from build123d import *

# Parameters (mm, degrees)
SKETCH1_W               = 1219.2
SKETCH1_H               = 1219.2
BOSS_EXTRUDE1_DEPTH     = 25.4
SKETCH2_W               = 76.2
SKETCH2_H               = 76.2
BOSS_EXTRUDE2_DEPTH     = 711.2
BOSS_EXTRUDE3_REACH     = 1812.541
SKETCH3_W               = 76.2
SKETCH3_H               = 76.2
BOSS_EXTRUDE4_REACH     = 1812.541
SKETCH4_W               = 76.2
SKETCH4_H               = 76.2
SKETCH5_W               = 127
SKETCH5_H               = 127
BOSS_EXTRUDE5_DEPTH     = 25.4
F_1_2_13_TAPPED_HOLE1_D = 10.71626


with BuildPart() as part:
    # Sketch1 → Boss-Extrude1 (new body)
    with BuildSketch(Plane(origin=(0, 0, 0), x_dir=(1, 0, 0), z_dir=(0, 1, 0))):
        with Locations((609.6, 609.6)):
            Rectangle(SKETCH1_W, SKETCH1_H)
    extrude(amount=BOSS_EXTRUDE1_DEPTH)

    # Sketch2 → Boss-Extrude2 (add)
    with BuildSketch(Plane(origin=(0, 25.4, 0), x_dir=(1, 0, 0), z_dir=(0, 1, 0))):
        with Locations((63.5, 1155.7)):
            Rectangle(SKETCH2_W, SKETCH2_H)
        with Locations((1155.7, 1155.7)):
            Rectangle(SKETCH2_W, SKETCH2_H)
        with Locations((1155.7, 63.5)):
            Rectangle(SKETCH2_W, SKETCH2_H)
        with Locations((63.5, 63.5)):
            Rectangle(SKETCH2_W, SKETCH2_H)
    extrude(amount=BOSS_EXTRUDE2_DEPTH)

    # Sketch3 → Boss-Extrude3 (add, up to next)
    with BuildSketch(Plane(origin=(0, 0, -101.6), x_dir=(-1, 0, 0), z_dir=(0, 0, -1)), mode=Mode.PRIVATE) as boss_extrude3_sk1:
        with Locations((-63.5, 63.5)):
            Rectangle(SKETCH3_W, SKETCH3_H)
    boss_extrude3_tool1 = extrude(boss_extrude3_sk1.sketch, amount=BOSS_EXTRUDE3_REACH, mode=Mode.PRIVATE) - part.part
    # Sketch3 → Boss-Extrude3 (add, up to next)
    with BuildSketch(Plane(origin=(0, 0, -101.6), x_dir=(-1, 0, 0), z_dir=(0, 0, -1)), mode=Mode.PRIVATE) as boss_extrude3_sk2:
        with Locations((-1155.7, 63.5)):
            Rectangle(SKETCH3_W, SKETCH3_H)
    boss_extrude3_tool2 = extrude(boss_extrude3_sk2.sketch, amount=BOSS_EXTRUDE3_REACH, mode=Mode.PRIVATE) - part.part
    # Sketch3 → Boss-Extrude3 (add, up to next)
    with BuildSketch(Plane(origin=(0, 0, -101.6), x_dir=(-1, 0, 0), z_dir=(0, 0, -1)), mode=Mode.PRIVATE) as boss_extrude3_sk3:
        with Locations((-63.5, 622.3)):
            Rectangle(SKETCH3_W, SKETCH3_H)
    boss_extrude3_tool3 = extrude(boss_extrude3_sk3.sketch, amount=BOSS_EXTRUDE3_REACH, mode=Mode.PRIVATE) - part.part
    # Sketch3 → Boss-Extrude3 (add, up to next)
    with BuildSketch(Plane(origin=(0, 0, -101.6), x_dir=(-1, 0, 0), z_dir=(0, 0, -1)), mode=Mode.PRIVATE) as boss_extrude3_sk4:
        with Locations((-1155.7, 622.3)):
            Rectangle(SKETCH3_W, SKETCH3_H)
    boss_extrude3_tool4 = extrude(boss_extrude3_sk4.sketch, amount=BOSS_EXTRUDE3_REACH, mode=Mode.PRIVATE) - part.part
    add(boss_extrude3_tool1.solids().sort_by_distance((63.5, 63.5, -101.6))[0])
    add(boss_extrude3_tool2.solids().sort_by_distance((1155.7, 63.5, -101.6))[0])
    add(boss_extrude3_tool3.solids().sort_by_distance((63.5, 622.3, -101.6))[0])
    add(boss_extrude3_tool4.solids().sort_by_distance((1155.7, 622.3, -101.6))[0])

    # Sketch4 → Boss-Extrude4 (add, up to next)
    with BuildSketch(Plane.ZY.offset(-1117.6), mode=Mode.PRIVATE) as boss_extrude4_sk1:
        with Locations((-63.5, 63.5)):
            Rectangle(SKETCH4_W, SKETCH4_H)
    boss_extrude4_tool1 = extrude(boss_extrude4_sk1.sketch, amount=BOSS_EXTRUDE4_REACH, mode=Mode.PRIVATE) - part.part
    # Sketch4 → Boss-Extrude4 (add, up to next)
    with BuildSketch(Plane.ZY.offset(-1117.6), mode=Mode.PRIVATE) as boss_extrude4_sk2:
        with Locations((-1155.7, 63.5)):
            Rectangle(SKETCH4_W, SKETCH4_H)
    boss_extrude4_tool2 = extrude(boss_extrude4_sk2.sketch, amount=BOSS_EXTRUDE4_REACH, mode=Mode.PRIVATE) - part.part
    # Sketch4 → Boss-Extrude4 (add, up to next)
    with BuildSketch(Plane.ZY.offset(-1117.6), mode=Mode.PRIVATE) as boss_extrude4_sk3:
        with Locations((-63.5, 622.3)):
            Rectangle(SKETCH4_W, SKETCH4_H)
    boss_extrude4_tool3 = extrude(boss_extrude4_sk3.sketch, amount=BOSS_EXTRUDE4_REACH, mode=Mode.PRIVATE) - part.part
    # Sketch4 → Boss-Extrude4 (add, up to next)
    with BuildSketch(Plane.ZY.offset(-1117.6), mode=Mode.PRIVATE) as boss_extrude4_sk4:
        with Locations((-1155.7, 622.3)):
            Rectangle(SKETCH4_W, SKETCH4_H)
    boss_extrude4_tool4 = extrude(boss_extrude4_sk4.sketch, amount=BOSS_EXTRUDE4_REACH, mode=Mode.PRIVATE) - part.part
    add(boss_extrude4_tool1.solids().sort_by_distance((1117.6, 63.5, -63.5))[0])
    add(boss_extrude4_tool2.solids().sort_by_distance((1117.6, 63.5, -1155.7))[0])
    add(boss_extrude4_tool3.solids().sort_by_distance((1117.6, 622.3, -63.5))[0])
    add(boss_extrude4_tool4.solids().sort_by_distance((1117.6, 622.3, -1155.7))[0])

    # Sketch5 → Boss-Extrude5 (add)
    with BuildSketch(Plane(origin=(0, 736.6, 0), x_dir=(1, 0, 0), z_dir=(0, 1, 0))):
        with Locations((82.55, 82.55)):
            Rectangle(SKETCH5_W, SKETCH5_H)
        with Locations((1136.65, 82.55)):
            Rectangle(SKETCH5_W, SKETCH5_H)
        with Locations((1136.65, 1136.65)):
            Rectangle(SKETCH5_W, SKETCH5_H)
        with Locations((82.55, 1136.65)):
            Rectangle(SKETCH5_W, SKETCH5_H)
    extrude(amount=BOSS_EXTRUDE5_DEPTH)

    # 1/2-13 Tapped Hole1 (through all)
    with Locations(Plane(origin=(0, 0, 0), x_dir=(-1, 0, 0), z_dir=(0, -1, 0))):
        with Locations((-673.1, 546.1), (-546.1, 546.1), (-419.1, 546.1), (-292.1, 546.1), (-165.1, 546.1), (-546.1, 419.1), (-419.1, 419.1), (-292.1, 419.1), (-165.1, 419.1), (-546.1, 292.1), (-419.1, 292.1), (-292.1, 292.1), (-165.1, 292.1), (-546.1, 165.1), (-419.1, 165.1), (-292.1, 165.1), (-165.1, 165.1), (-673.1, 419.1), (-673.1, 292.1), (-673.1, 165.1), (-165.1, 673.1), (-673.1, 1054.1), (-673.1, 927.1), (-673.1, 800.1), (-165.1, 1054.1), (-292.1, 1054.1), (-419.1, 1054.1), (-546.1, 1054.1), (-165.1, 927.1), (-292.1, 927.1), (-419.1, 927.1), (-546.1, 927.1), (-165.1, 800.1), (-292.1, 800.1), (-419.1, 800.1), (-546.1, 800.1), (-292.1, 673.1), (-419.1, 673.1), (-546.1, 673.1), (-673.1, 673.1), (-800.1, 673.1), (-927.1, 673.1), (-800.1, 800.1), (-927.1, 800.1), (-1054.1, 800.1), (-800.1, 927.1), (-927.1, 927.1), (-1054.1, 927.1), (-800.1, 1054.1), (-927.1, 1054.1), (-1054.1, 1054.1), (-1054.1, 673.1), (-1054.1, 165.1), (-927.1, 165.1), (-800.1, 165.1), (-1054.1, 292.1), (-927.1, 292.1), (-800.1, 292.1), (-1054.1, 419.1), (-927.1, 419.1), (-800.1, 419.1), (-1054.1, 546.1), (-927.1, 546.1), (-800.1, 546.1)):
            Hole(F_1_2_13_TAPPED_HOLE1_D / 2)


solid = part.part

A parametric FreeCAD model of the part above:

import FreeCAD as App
import Part
import Sketcher
from FreeCAD import Vector
Q = App.Units.Quantity


def add_polygon(sketch, points):
    """Adds a closed chain of lines whose ends are joined by coincident constraints."""
    first, n = sketch.GeometryCount, len(points)
    for a, b in zip(points, points[1:] + points[:1]):
        sketch.addGeometry(Part.LineSegment(App.Vector(*a, 0), App.Vector(*b, 0)), False)
    for i in range(n):
        sketch.addConstraint(Sketcher.Constraint("Coincident", first + i, 2, first + (i + 1) % n, 1))

doc = App.newDocument("Part")
params = doc.addObject("Spreadsheet::Sheet", "Params")
for row, (alias, value) in enumerate([
    ("sketch1_width", "48 in"),
    ("pad1_length", "1 in"),
    ("sketch2_width", "3 in"),
    ("pad2_length", "28 in"),
    ("sketch3_width", "3 in"),
    ("sketch4_width", "3 in"),
    ("sketch5_width", "3 in"),
    ("sketch6_width", "3 in"),
    ("sketch7_width", "3 in"),
    ("sketch8_width", "3 in"),
    ("sketch9_width", "3 in"),
    ("sketch10_width", "3 in"),
    ("sketch11_width", "5 in"),
    ("pad11_length", "1 in"),
    ("hole_diameter", "0.4219 in"),
], start=1):
    params.set(f"A{row}", alias)
    params.set(f"B{row}", "=" + value)
    params.setAlias(f"B{row}", alias)

body = doc.addObject("PartDesign::Body", "Body")

# Sketch on XZ plane
sketch1 = body.newObject("Sketcher::SketchObject", "Sketch")
sketch1.AttachmentSupport = (doc.getObject("XZ_Plane"), [""])
sketch1.MapMode = "FlatFace"
add_polygon(sketch1, [(0, -1219.2), (0, 0), (1219.2, 0), (1219.2, -1219.2)])  # lines 0-3
sketch1.addConstraint([
    Sketcher.Constraint("Vertical", 0),
    Sketcher.Constraint("Horizontal", 1),
    Sketcher.Constraint("Vertical", 2),
    Sketcher.Constraint("Horizontal", 3),
    Sketcher.Constraint("Coincident", 0, 2, -1, 1),
    Sketcher.Constraint("Equal", 3, 0),
    Sketcher.Constraint("DistanceX", 1, 1, 1, 2, Q("48 in")),
])
sketch1.setExpression("Constraints[10]", "Params.sketch1_width")
pad1 = body.newObject("PartDesign::Pad", "Pad")
pad1.Profile = sketch1
pad1.setExpression("Length", "Params.pad1_length")
pad1.Reversed = True

# Sketch on XZ plane
sketch2 = body.newObject("Sketcher::SketchObject", "Sketch001")
sketch2.AttachmentSupport = (doc.getObject("XZ_Plane"), [""])
sketch2.MapMode = "FlatFace"
sketch2.AttachmentOffset = App.Placement(Vector(0, 0, -1 * 25.4), App.Rotation())
add_polygon(sketch2, [(25.4, -1193.8), (25.4, -1117.6), (101.6, -1117.6), (101.6, -1193.8)])  # lines 0-3
add_polygon(sketch2, [(1117.6, -1193.8), (1117.6, -1117.6), (1193.8, -1117.6), (1193.8, -1193.8)])  # lines 4-7
add_polygon(sketch2, [(1117.6, -101.6), (1117.6, -25.4), (1193.8, -25.4), (1193.8, -101.6)])  # lines 8-11
add_polygon(sketch2, [(25.4, -101.6), (25.4, -25.4), (101.6, -25.4), (101.6, -101.6)])  # lines 12-15
sketch2.addConstraint([
    Sketcher.Constraint("Vertical", 0),
    Sketcher.Constraint("Horizontal", 1),
    Sketcher.Constraint("Vertical", 2),
    Sketcher.Constraint("Horizontal", 3),
    Sketcher.Constraint("Vertical", 4),
    Sketcher.Constraint("Horizontal", 5),
    Sketcher.Constraint("Vertical", 6),
    Sketcher.Constraint("Horizontal", 7),
    Sketcher.Constraint("Vertical", 8),
    Sketcher.Constraint("Horizontal", 9),
    Sketcher.Constraint("Vertical", 10),
    Sketcher.Constraint("Horizontal", 11),
    Sketcher.Constraint("Vertical", 12),
    Sketcher.Constraint("Horizontal", 13),
    Sketcher.Constraint("Vertical", 14),
    Sketcher.Constraint("Horizontal", 15),
    Sketcher.Constraint("Horizontal", 1, 2, 4, 2),
    Sketcher.Constraint("Horizontal", 3, 2, 6, 2),
    Sketcher.Constraint("Horizontal", 9, 2, 12, 2),
    Sketcher.Constraint("Horizontal", 11, 2, 14, 2),
    Sketcher.Constraint("Vertical", 7, 2, 8, 2),
    Sketcher.Constraint("Vertical", 6, 2, 9, 2),
    Sketcher.Constraint("Vertical", 3, 2, 12, 2),
    Sketcher.Constraint("Vertical", 2, 2, 13, 2),
    Sketcher.Constraint("Equal", 3, 5),
    Sketcher.Constraint("Equal", 15, 0),
    Sketcher.Constraint("Equal", 6, 8),
    Sketcher.Constraint("DistanceX", 1, 1, 1, 2, Q("3 in")),
    Sketcher.Constraint("DistanceX", -1, 1, 0, 2, Q("1 in")),
    Sketcher.Constraint("DistanceY", 0, 2, -1, 1, Q("44 in")),
    Sketcher.Constraint("DistanceX", -1, 1, 4, 2, Q("44 in")),
    Sketcher.Constraint("DistanceY", 8, 2, -1, 1, Q("1 in")),
])
sketch2.setExpression("Constraints[43]", "Params.sketch2_width")
pad2 = body.newObject("PartDesign::Pad", "Pad001")
pad2.Profile = sketch2
pad2.setExpression("Length", "Params.pad2_length")
pad2.Reversed = True

# Sketch on XY plane
sketch3 = body.newObject("Sketcher::SketchObject", "Sketch002")
sketch3.AttachmentSupport = (doc.getObject("XY_Plane"), [""])
sketch3.MapMode = "FlatFace"
sketch3.AttachmentOffset = App.Placement(Vector(0, 0, -4 * 25.4), App.Rotation())
add_polygon(sketch3, [(101.6, 101.6), (101.6, 25.4), (25.4, 25.4), (25.4, 101.6)])  # lines 0-3
sketch3.addConstraint([
    Sketcher.Constraint("Vertical", 0),
    Sketcher.Constraint("Horizontal", 1),
    Sketcher.Constraint("Vertical", 2),
    Sketcher.Constraint("Horizontal", 3),
    Sketcher.Constraint("Equal", 3, 0),
    Sketcher.Constraint("DistanceX", 1, 2, 1, 1, Q("3 in")),
    Sketcher.Constraint("DistanceX", -1, 1, 0, 2, Q("4 in")),
    Sketcher.Constraint("DistanceY", -1, 1, 0, 2, Q("1 in")),
])
sketch3.setExpression("Constraints[9]", "Params.sketch3_width")
pad3 = body.newObject("PartDesign::Pad", "Pad002")
pad3.Profile = sketch3
pad3.Type = "UpToFirst"
pad3.Reversed = True

# Sketch on XY plane
sketch4 = body.newObject("Sketcher::SketchObject", "Sketch003")
sketch4.AttachmentSupport = (doc.getObject("XY_Plane"), [""])
sketch4.MapMode = "FlatFace"
sketch4.AttachmentOffset = App.Placement(Vector(0, 0, -4 * 25.4), App.Rotation())
add_polygon(sketch4, [(1193.8, 101.6), (1193.8, 25.4), (1117.6, 25.4), (1117.6, 101.6)])  # lines 0-3
sketch4.addConstraint([
    Sketcher.Constraint("Vertical", 0),
    Sketcher.Constraint("Horizontal", 1),
    Sketcher.Constraint("Vertical", 2),
    Sketcher.Constraint("Horizontal", 3),
    Sketcher.Constraint("Equal", 3, 0),
    Sketcher.Constraint("DistanceX", 1, 2, 1, 1, Q("3 in")),
    Sketcher.Constraint("DistanceX", -1, 1, 0, 2, Q("47 in")),
    Sketcher.Constraint("DistanceY", -1, 1, 0, 2, Q("1 in")),
])
sketch4.setExpression("Constraints[9]", "Params.sketch4_width")
pad4 = body.newObject("PartDesign::Pad", "Pad003")
pad4.Profile = sketch4
pad4.Type = "UpToFirst"
pad4.Reversed = True

# Sketch on XY plane
sketch5 = body.newObject("Sketcher::SketchObject", "Sketch004")
sketch5.AttachmentSupport = (doc.getObject("XY_Plane"), [""])
sketch5.MapMode = "FlatFace"
sketch5.AttachmentOffset = App.Placement(Vector(0, 0, -4 * 25.4), App.Rotation())
add_polygon(sketch5, [(101.6, 660.4), (101.6, 584.2), (25.4, 584.2), (25.4, 660.4)])  # lines 0-3
sketch5.addConstraint([
    Sketcher.Constraint("Vertical", 0),
    Sketcher.Constraint("Horizontal", 1),
    Sketcher.Constraint("Vertical", 2),
    Sketcher.Constraint("Horizontal", 3),
    Sketcher.Constraint("Equal", 3, 0),
    Sketcher.Constraint("DistanceX", 1, 2, 1, 1, Q("3 in")),
    Sketcher.Constraint("DistanceX", -1, 1, 0, 2, Q("4 in")),
    Sketcher.Constraint("DistanceY", -1, 1, 0, 2, Q("23 in")),
])
sketch5.setExpression("Constraints[9]", "Params.sketch5_width")
pad5 = body.newObject("PartDesign::Pad", "Pad004")
pad5.Profile = sketch5
pad5.Type = "UpToFirst"
pad5.Reversed = True

# Sketch on XY plane
sketch6 = body.newObject("Sketcher::SketchObject", "Sketch005")
sketch6.AttachmentSupport = (doc.getObject("XY_Plane"), [""])
sketch6.MapMode = "FlatFace"
sketch6.AttachmentOffset = App.Placement(Vector(0, 0, -4 * 25.4), App.Rotation())
add_polygon(sketch6, [(1193.8, 660.4), (1193.8, 584.2), (1117.6, 584.2), (1117.6, 660.4)])  # lines 0-3
sketch6.addConstraint([
    Sketcher.Constraint("Vertical", 0),
    Sketcher.Constraint("Horizontal", 1),
    Sketcher.Constraint("Vertical", 2),
    Sketcher.Constraint("Horizontal", 3),
    Sketcher.Constraint("Equal", 3, 0),
    Sketcher.Constraint("DistanceX", 1, 2, 1, 1, Q("3 in")),
    Sketcher.Constraint("DistanceX", -1, 1, 0, 2, Q("47 in")),
    Sketcher.Constraint("DistanceY", -1, 1, 0, 2, Q("23 in")),
])
sketch6.setExpression("Constraints[9]", "Params.sketch6_width")
pad6 = body.newObject("PartDesign::Pad", "Pad005")
pad6.Profile = sketch6
pad6.Type = "UpToFirst"
pad6.Reversed = True

# Sketch on YZ plane
sketch7 = body.newObject("Sketcher::SketchObject", "Sketch006")
sketch7.AttachmentSupport = (doc.getObject("YZ_Plane"), [""])
sketch7.MapMode = "FlatFace"
sketch7.AttachmentOffset = App.Placement(Vector(0, 0, 44 * 25.4), App.Rotation())
add_polygon(sketch7, [(101.6, -101.6), (25.4, -101.6), (25.4, -25.4), (101.6, -25.4)])  # lines 0-3
sketch7.addConstraint([
    Sketcher.Constraint("Horizontal", 0),
    Sketcher.Constraint("Vertical", 1),
    Sketcher.Constraint("Horizontal", 2),
    Sketcher.Constraint("Vertical", 3),
    Sketcher.Constraint("Equal", 2, 1),
    Sketcher.Constraint("DistanceX", 0, 2, 0, 1, Q("3 in")),
    Sketcher.Constraint("DistanceX", -1, 1, 0, 2, Q("1 in")),
    Sketcher.Constraint("DistanceY", 0, 2, -1, 1, Q("4 in")),
])
sketch7.setExpression("Constraints[9]", "Params.sketch7_width")
pad7 = body.newObject("PartDesign::Pad", "Pad006")
pad7.Profile = sketch7
pad7.Type = "UpToFirst"
pad7.Reversed = True

# Sketch on YZ plane
sketch8 = body.newObject("Sketcher::SketchObject", "Sketch007")
sketch8.AttachmentSupport = (doc.getObject("YZ_Plane"), [""])
sketch8.MapMode = "FlatFace"
sketch8.AttachmentOffset = App.Placement(Vector(0, 0, 44 * 25.4), App.Rotation())
add_polygon(sketch8, [(101.6, -1193.8), (25.4, -1193.8), (25.4, -1117.6), (101.6, -1117.6)])  # lines 0-3
sketch8.addConstraint([
    Sketcher.Constraint("Horizontal", 0),
    Sketcher.Constraint("Vertical", 1),
    Sketcher.Constraint("Horizontal", 2),
    Sketcher.Constraint("Vertical", 3),
    Sketcher.Constraint("Equal", 2, 1),
    Sketcher.Constraint("DistanceX", 0, 2, 0, 1, Q("3 in")),
    Sketcher.Constraint("DistanceX", -1, 1, 0, 2, Q("1 in")),
    Sketcher.Constraint("DistanceY", 0, 2, -1, 1, Q("47 in")),
])
sketch8.setExpression("Constraints[9]", "Params.sketch8_width")
pad8 = body.newObject("PartDesign::Pad", "Pad007")
pad8.Profile = sketch8
pad8.Type = "UpToFirst"
pad8.Reversed = True

# Sketch on YZ plane
sketch9 = body.newObject("Sketcher::SketchObject", "Sketch008")
sketch9.AttachmentSupport = (doc.getObject("YZ_Plane"), [""])
sketch9.MapMode = "FlatFace"
sketch9.AttachmentOffset = App.Placement(Vector(0, 0, 44 * 25.4), App.Rotation())
add_polygon(sketch9, [(660.4, -101.6), (584.2, -101.6), (584.2, -25.4), (660.4, -25.4)])  # lines 0-3
sketch9.addConstraint([
    Sketcher.Constraint("Horizontal", 0),
    Sketcher.Constraint("Vertical", 1),
    Sketcher.Constraint("Horizontal", 2),
    Sketcher.Constraint("Vertical", 3),
    Sketcher.Constraint("Equal", 2, 1),
    Sketcher.Constraint("DistanceX", 0, 2, 0, 1, Q("3 in")),
    Sketcher.Constraint("DistanceX", -1, 1, 0, 2, Q("23 in")),
    Sketcher.Constraint("DistanceY", 0, 2, -1, 1, Q("4 in")),
])
sketch9.setExpression("Constraints[9]", "Params.sketch9_width")
pad9 = body.newObject("PartDesign::Pad", "Pad008")
pad9.Profile = sketch9
pad9.Type = "UpToFirst"
pad9.Reversed = True

# Sketch on YZ plane
sketch10 = body.newObject("Sketcher::SketchObject", "Sketch009")
sketch10.AttachmentSupport = (doc.getObject("YZ_Plane"), [""])
sketch10.MapMode = "FlatFace"
sketch10.AttachmentOffset = App.Placement(Vector(0, 0, 44 * 25.4), App.Rotation())
add_polygon(sketch10, [(660.4, -1193.8), (584.2, -1193.8), (584.2, -1117.6), (660.4, -1117.6)])  # lines 0-3
sketch10.addConstraint([
    Sketcher.Constraint("Horizontal", 0),
    Sketcher.Constraint("Vertical", 1),
    Sketcher.Constraint("Horizontal", 2),
    Sketcher.Constraint("Vertical", 3),
    Sketcher.Constraint("Equal", 2, 1),
    Sketcher.Constraint("DistanceX", 0, 2, 0, 1, Q("3 in")),
    Sketcher.Constraint("DistanceX", -1, 1, 0, 2, Q("23 in")),
    Sketcher.Constraint("DistanceY", 0, 2, -1, 1, Q("47 in")),
])
sketch10.setExpression("Constraints[9]", "Params.sketch10_width")
pad10 = body.newObject("PartDesign::Pad", "Pad009")
pad10.Profile = sketch10
pad10.Type = "UpToFirst"
pad10.Reversed = True

# Sketch on XZ plane
sketch11 = body.newObject("Sketcher::SketchObject", "Sketch010")
sketch11.AttachmentSupport = (doc.getObject("XZ_Plane"), [""])
sketch11.MapMode = "FlatFace"
sketch11.AttachmentOffset = App.Placement(Vector(0, 0, -29 * 25.4), App.Rotation())
add_polygon(sketch11, [(19.05, -146.05), (19.05, -19.05), (146.05, -19.05), (146.05, -146.05)])  # lines 0-3
add_polygon(sketch11, [(1073.15, -146.05), (1073.15, -19.05), (1200.15, -19.05), (1200.15, -146.05)])  # lines 4-7
add_polygon(sketch11, [(1073.15, -1200.15), (1073.15, -1073.15), (1200.15, -1073.15), (1200.15, -1200.15)])  # lines 8-11
add_polygon(sketch11, [(19.05, -1200.15), (19.05, -1073.15), (146.05, -1073.15), (146.05, -1200.15)])  # lines 12-15
sketch11.addConstraint([
    Sketcher.Constraint("Vertical", 0),
    Sketcher.Constraint("Horizontal", 1),
    Sketcher.Constraint("Vertical", 2),
    Sketcher.Constraint("Horizontal", 3),
    Sketcher.Constraint("Vertical", 4),
    Sketcher.Constraint("Horizontal", 5),
    Sketcher.Constraint("Vertical", 6),
    Sketcher.Constraint("Horizontal", 7),
    Sketcher.Constraint("Vertical", 8),
    Sketcher.Constraint("Horizontal", 9),
    Sketcher.Constraint("Vertical", 10),
    Sketcher.Constraint("Horizontal", 11),
    Sketcher.Constraint("Vertical", 12),
    Sketcher.Constraint("Horizontal", 13),
    Sketcher.Constraint("Vertical", 14),
    Sketcher.Constraint("Horizontal", 15),
    Sketcher.Constraint("Horizontal", 1, 2, 4, 2),
    Sketcher.Constraint("Horizontal", 3, 2, 6, 2),
    Sketcher.Constraint("Horizontal", 9, 2, 12, 2),
    Sketcher.Constraint("Horizontal", 11, 2, 14, 2),
    Sketcher.Constraint("Vertical", 7, 2, 8, 2),
    Sketcher.Constraint("Vertical", 6, 2, 9, 2),
    Sketcher.Constraint("Vertical", 3, 2, 12, 2),
    Sketcher.Constraint("Vertical", 2, 2, 13, 2),
    Sketcher.Constraint("Equal", 3, 5),
    Sketcher.Constraint("Equal", 15, 0),
    Sketcher.Constraint("Equal", 6, 8),
    Sketcher.Constraint("DistanceX", 1, 1, 1, 2, Q("5 in")),
    Sketcher.Constraint("DistanceX", 1, 2, 4, 2, Q("36.5 in")),
    Sketcher.Constraint("DistanceY", 8, 2, 7, 2, Q("36.5 in")),
    Sketcher.Constraint("DistanceX", -1, 1, 0, 2, Q("0.75 in")),
    Sketcher.Constraint("DistanceY", 0, 2, -1, 1, Q("0.75 in")),
])
sketch11.setExpression("Constraints[43]", "Params.sketch11_width")
pad11 = body.newObject("PartDesign::Pad", "Pad010")
pad11.Profile = sketch11
pad11.setExpression("Length", "Params.pad11_length")
pad11.Reversed = True

# Sketch on XZ plane
sketch12 = body.newObject("Sketcher::SketchObject", "Sketch011")
sketch12.AttachmentSupport = (doc.getObject("XZ_Plane"), [""])
sketch12.MapMode = "FlatFace"
sketch12.addGeometry([
    Part.Circle(Vector(673.1, -546.1, 0), Vector(0, 0, 1), 5.35813),  # 0
    Part.Circle(Vector(546.1, -546.1, 0), Vector(0, 0, 1), 5.35813),  # 1
    Part.Circle(Vector(419.1, -546.1, 0), Vector(0, 0, 1), 5.35813),  # 2
    Part.Circle(Vector(292.1, -546.1, 0), Vector(0, 0, 1), 5.35813),  # 3
    Part.Circle(Vector(165.1, -546.1, 0), Vector(0, 0, 1), 5.35813),  # 4
    Part.Circle(Vector(546.1, -419.1, 0), Vector(0, 0, 1), 5.35813),  # 5
    Part.Circle(Vector(419.1, -419.1, 0), Vector(0, 0, 1), 5.35813),  # 6
    Part.Circle(Vector(292.1, -419.1, 0), Vector(0, 0, 1), 5.35813),  # 7
    Part.Circle(Vector(165.1, -419.1, 0), Vector(0, 0, 1), 5.35813),  # 8
    Part.Circle(Vector(546.1, -292.1, 0), Vector(0, 0, 1), 5.35813),  # 9
    Part.Circle(Vector(419.1, -292.1, 0), Vector(0, 0, 1), 5.35813),  # 10
    Part.Circle(Vector(292.1, -292.1, 0), Vector(0, 0, 1), 5.35813),  # 11
    Part.Circle(Vector(165.1, -292.1, 0), Vector(0, 0, 1), 5.35813),  # 12
    Part.Circle(Vector(546.1, -165.1, 0), Vector(0, 0, 1), 5.35813),  # 13
    Part.Circle(Vector(419.1, -165.1, 0), Vector(0, 0, 1), 5.35813),  # 14
    Part.Circle(Vector(292.1, -165.1, 0), Vector(0, 0, 1), 5.35813),  # 15
    Part.Circle(Vector(165.1, -165.1, 0), Vector(0, 0, 1), 5.35813),  # 16
    Part.Circle(Vector(673.1, -419.1, 0), Vector(0, 0, 1), 5.35813),  # 17
    Part.Circle(Vector(673.1, -292.1, 0), Vector(0, 0, 1), 5.35813),  # 18
    Part.Circle(Vector(673.1, -165.1, 0), Vector(0, 0, 1), 5.35813),  # 19
    Part.Circle(Vector(165.1, -673.1, 0), Vector(0, 0, 1), 5.35813),  # 20
    Part.Circle(Vector(673.1, -1054.1, 0), Vector(0, 0, 1), 5.35813),  # 21
    Part.Circle(Vector(673.1, -927.1, 0), Vector(0, 0, 1), 5.35813),  # 22
    Part.Circle(Vector(673.1, -800.1, 0), Vector(0, 0, 1), 5.35813),  # 23
    Part.Circle(Vector(165.1, -1054.1, 0), Vector(0, 0, 1), 5.35813),  # 24
    Part.Circle(Vector(292.1, -1054.1, 0), Vector(0, 0, 1), 5.35813),  # 25
    Part.Circle(Vector(419.1, -1054.1, 0), Vector(0, 0, 1), 5.35813),  # 26
    Part.Circle(Vector(546.1, -1054.1, 0), Vector(0, 0, 1), 5.35813),  # 27
    Part.Circle(Vector(165.1, -927.1, 0), Vector(0, 0, 1), 5.35813),  # 28
    Part.Circle(Vector(292.1, -927.1, 0), Vector(0, 0, 1), 5.35813),  # 29
    Part.Circle(Vector(419.1, -927.1, 0), Vector(0, 0, 1), 5.35813),  # 30
    Part.Circle(Vector(546.1, -927.1, 0), Vector(0, 0, 1), 5.35813),  # 31
    Part.Circle(Vector(165.1, -800.1, 0), Vector(0, 0, 1), 5.35813),  # 32
    Part.Circle(Vector(292.1, -800.1, 0), Vector(0, 0, 1), 5.35813),  # 33
    Part.Circle(Vector(419.1, -800.1, 0), Vector(0, 0, 1), 5.35813),  # 34
    Part.Circle(Vector(546.1, -800.1, 0), Vector(0, 0, 1), 5.35813),  # 35
    Part.Circle(Vector(292.1, -673.1, 0), Vector(0, 0, 1), 5.35813),  # 36
    Part.Circle(Vector(419.1, -673.1, 0), Vector(0, 0, 1), 5.35813),  # 37
    Part.Circle(Vector(546.1, -673.1, 0), Vector(0, 0, 1), 5.35813),  # 38
    Part.Circle(Vector(673.1, -673.1, 0), Vector(0, 0, 1), 5.35813),  # 39
    Part.Circle(Vector(800.1, -673.1, 0), Vector(0, 0, 1), 5.35813),  # 40
    Part.Circle(Vector(927.1, -673.1, 0), Vector(0, 0, 1), 5.35813),  # 41
    Part.Circle(Vector(800.1, -800.1, 0), Vector(0, 0, 1), 5.35813),  # 42
    Part.Circle(Vector(927.1, -800.1, 0), Vector(0, 0, 1), 5.35813),  # 43
    Part.Circle(Vector(1054.1, -800.1, 0), Vector(0, 0, 1), 5.35813),  # 44
    Part.Circle(Vector(800.1, -927.1, 0), Vector(0, 0, 1), 5.35813),  # 45
    Part.Circle(Vector(927.1, -927.1, 0), Vector(0, 0, 1), 5.35813),  # 46
    Part.Circle(Vector(1054.1, -927.1, 0), Vector(0, 0, 1), 5.35813),  # 47
    Part.Circle(Vector(800.1, -1054.1, 0), Vector(0, 0, 1), 5.35813),  # 48
    Part.Circle(Vector(927.1, -1054.1, 0), Vector(0, 0, 1), 5.35813),  # 49
    Part.Circle(Vector(1054.1, -1054.1, 0), Vector(0, 0, 1), 5.35813),  # 50
    Part.Circle(Vector(1054.1, -673.1, 0), Vector(0, 0, 1), 5.35813),  # 51
    Part.Circle(Vector(1054.1, -165.1, 0), Vector(0, 0, 1), 5.35813),  # 52
    Part.Circle(Vector(927.1, -165.1, 0), Vector(0, 0, 1), 5.35813),  # 53
    Part.Circle(Vector(800.1, -165.1, 0), Vector(0, 0, 1), 5.35813),  # 54
    Part.Circle(Vector(1054.1, -292.1, 0), Vector(0, 0, 1), 5.35813),  # 55
    Part.Circle(Vector(927.1, -292.1, 0), Vector(0, 0, 1), 5.35813),  # 56
    Part.Circle(Vector(800.1, -292.1, 0), Vector(0, 0, 1), 5.35813),  # 57
    Part.Circle(Vector(1054.1, -419.1, 0), Vector(0, 0, 1), 5.35813),  # 58
    Part.Circle(Vector(927.1, -419.1, 0), Vector(0, 0, 1), 5.35813),  # 59
    Part.Circle(Vector(800.1, -419.1, 0), Vector(0, 0, 1), 5.35813),  # 60
    Part.Circle(Vector(1054.1, -546.1, 0), Vector(0, 0, 1), 5.35813),  # 61
    Part.Circle(Vector(927.1, -546.1, 0), Vector(0, 0, 1), 5.35813),  # 62
    Part.Circle(Vector(800.1, -546.1, 0), Vector(0, 0, 1), 5.35813),  # 63
], False)
sketch12.addConstraint([
    Sketcher.Constraint("Equal", 0, 1),
    Sketcher.Constraint("Equal", 1, 2),
    Sketcher.Constraint("Equal", 2, 3),
    Sketcher.Constraint("Equal", 3, 4),
    Sketcher.Constraint("Equal", 4, 5),
    Sketcher.Constraint("Equal", 5, 6),
    Sketcher.Constraint("Equal", 6, 7),
    Sketcher.Constraint("Equal", 7, 8),
    Sketcher.Constraint("Equal", 8, 9),
    Sketcher.Constraint("Equal", 9, 10),
    Sketcher.Constraint("Equal", 10, 11),
    Sketcher.Constraint("Equal", 11, 12),
    Sketcher.Constraint("Equal", 12, 13),
    Sketcher.Constraint("Equal", 13, 14),
    Sketcher.Constraint("Equal", 14, 15),
    Sketcher.Constraint("Equal", 15, 16),
    Sketcher.Constraint("Equal", 16, 17),
    Sketcher.Constraint("Equal", 17, 18),
    Sketcher.Constraint("Equal", 18, 19),
    Sketcher.Constraint("Equal", 19, 20),
    Sketcher.Constraint("Equal", 20, 21),
    Sketcher.Constraint("Equal", 21, 22),
    Sketcher.Constraint("Equal", 22, 23),
    Sketcher.Constraint("Equal", 23, 24),
    Sketcher.Constraint("Equal", 24, 25),
    Sketcher.Constraint("Equal", 25, 26),
    Sketcher.Constraint("Equal", 26, 27),
    Sketcher.Constraint("Equal", 27, 28),
    Sketcher.Constraint("Equal", 28, 29),
    Sketcher.Constraint("Equal", 29, 30),
    Sketcher.Constraint("Equal", 30, 31),
    Sketcher.Constraint("Equal", 31, 32),
    Sketcher.Constraint("Equal", 32, 33),
    Sketcher.Constraint("Equal", 33, 34),
    Sketcher.Constraint("Equal", 34, 35),
    Sketcher.Constraint("Equal", 35, 36),
    Sketcher.Constraint("Equal", 36, 37),
    Sketcher.Constraint("Equal", 37, 38),
    Sketcher.Constraint("Equal", 38, 39),
    Sketcher.Constraint("Equal", 39, 40),
    Sketcher.Constraint("Equal", 40, 41),
    Sketcher.Constraint("Equal", 41, 42),
    Sketcher.Constraint("Equal", 42, 43),
    Sketcher.Constraint("Equal", 43, 44),
    Sketcher.Constraint("Equal", 44, 45),
    Sketcher.Constraint("Equal", 45, 46),
    Sketcher.Constraint("Equal", 46, 47),
    Sketcher.Constraint("Equal", 47, 48),
    Sketcher.Constraint("Equal", 48, 49),
    Sketcher.Constraint("Equal", 49, 50),
    Sketcher.Constraint("Equal", 50, 51),
    Sketcher.Constraint("Equal", 51, 52),
    Sketcher.Constraint("Equal", 52, 53),
    Sketcher.Constraint("Equal", 53, 54),
    Sketcher.Constraint("Equal", 54, 55),
    Sketcher.Constraint("Equal", 55, 56),
    Sketcher.Constraint("Equal", 56, 57),
    Sketcher.Constraint("Equal", 57, 58),
    Sketcher.Constraint("Equal", 58, 59),
    Sketcher.Constraint("Equal", 59, 60),
    Sketcher.Constraint("Equal", 60, 61),
    Sketcher.Constraint("Equal", 61, 62),
    Sketcher.Constraint("Equal", 62, 63),
    Sketcher.Constraint("Horizontal", 0, 3, 1, 3),
    Sketcher.Constraint("Horizontal", 1, 3, 2, 3),
    Sketcher.Constraint("Horizontal", 2, 3, 3, 3),
    Sketcher.Constraint("Horizontal", 3, 3, 4, 3),
    Sketcher.Constraint("Horizontal", 5, 3, 6, 3),
    Sketcher.Constraint("Horizontal", 6, 3, 7, 3),
    Sketcher.Constraint("Horizontal", 7, 3, 8, 3),
    Sketcher.Constraint("Horizontal", 9, 3, 10, 3),
    Sketcher.Constraint("Horizontal", 10, 3, 11, 3),
    Sketcher.Constraint("Horizontal", 11, 3, 12, 3),
    Sketcher.Constraint("Horizontal", 13, 3, 14, 3),
    Sketcher.Constraint("Horizontal", 14, 3, 15, 3),
    Sketcher.Constraint("Horizontal", 15, 3, 16, 3),
    Sketcher.Constraint("Horizontal", 8, 3, 17, 3),
    Sketcher.Constraint("Horizontal", 12, 3, 18, 3),
    Sketcher.Constraint("Horizontal", 16, 3, 19, 3),
    Sketcher.Constraint("Horizontal", 21, 3, 24, 3),
    Sketcher.Constraint("Horizontal", 24, 3, 25, 3),
    Sketcher.Constraint("Horizontal", 25, 3, 26, 3),
    Sketcher.Constraint("Horizontal", 26, 3, 27, 3),
    Sketcher.Constraint("Horizontal", 22, 3, 28, 3),
    Sketcher.Constraint("Horizontal", 28, 3, 29, 3),
    Sketcher.Constraint("Horizontal", 29, 3, 30, 3),
    Sketcher.Constraint("Horizontal", 30, 3, 31, 3),
    Sketcher.Constraint("Horizontal", 23, 3, 32, 3),
    Sketcher.Constraint("Horizontal", 32, 3, 33, 3),
    Sketcher.Constraint("Horizontal", 33, 3, 34, 3),
    Sketcher.Constraint("Horizontal", 34, 3, 35, 3),
    Sketcher.Constraint("Horizontal", 20, 3, 36, 3),
    Sketcher.Constraint("Horizontal", 36, 3, 37, 3),
    Sketcher.Constraint("Horizontal", 37, 3, 38, 3),
    Sketcher.Constraint("Horizontal", 38, 3, 39, 3),
    Sketcher.Constraint("Horizontal", 39, 3, 40, 3),
    Sketcher.Constraint("Horizontal", 40, 3, 41, 3),
    Sketcher.Constraint("Horizontal", 35, 3, 42, 3),
    Sketcher.Constraint("Horizontal", 42, 3, 43, 3),
    Sketcher.Constraint("Horizontal", 43, 3, 44, 3),
    Sketcher.Constraint("Horizontal", 31, 3, 45, 3),
    Sketcher.Constraint("Horizontal", 45, 3, 46, 3),
    Sketcher.Constraint("Horizontal", 46, 3, 47, 3),
    Sketcher.Constraint("Horizontal", 27, 3, 48, 3),
    Sketcher.Constraint("Horizontal", 48, 3, 49, 3),
    Sketcher.Constraint("Horizontal", 49, 3, 50, 3),
    Sketcher.Constraint("Horizontal", 41, 3, 51, 3),
    Sketcher.Constraint("Horizontal", 19, 3, 52, 3),
    Sketcher.Constraint("Horizontal", 52, 3, 53, 3),
    Sketcher.Constraint("Horizontal", 53, 3, 54, 3),
    Sketcher.Constraint("Horizontal", 18, 3, 55, 3),
    Sketcher.Constraint("Horizontal", 55, 3, 56, 3),
    Sketcher.Constraint("Horizontal", 56, 3, 57, 3),
    Sketcher.Constraint("Horizontal", 17, 3, 58, 3),
    Sketcher.Constraint("Horizontal", 58, 3, 59, 3),
    Sketcher.Constraint("Horizontal", 59, 3, 60, 3),
    Sketcher.Constraint("Horizontal", 4, 3, 61, 3),
    Sketcher.Constraint("Horizontal", 61, 3, 62, 3),
    Sketcher.Constraint("Horizontal", 62, 3, 63, 3),
    Sketcher.Constraint("Vertical", 1, 3, 5, 3),
    Sketcher.Constraint("Vertical", 2, 3, 6, 3),
    Sketcher.Constraint("Vertical", 3, 3, 7, 3),
    Sketcher.Constraint("Vertical", 4, 3, 8, 3),
    Sketcher.Constraint("Vertical", 5, 3, 9, 3),
    Sketcher.Constraint("Vertical", 6, 3, 10, 3),
    Sketcher.Constraint("Vertical", 7, 3, 11, 3),
    Sketcher.Constraint("Vertical", 8, 3, 12, 3),
    Sketcher.Constraint("Vertical", 9, 3, 13, 3),
    Sketcher.Constraint("Vertical", 10, 3, 14, 3),
    Sketcher.Constraint("Vertical", 11, 3, 15, 3),
    Sketcher.Constraint("Vertical", 12, 3, 16, 3),
    Sketcher.Constraint("Vertical", 0, 3, 17, 3),
    Sketcher.Constraint("Vertical", 17, 3, 18, 3),
    Sketcher.Constraint("Vertical", 18, 3, 19, 3),
    Sketcher.Constraint("Vertical", 16, 3, 20, 3),
    Sketcher.Constraint("Vertical", 19, 3, 21, 3),
    Sketcher.Constraint("Vertical", 21, 3, 22, 3),
    Sketcher.Constraint("Vertical", 22, 3, 23, 3),
    Sketcher.Constraint("Vertical", 20, 3, 24, 3),
    Sketcher.Constraint("Vertical", 15, 3, 25, 3),
    Sketcher.Constraint("Vertical", 14, 3, 26, 3),
    Sketcher.Constraint("Vertical", 13, 3, 27, 3),
    Sketcher.Constraint("Vertical", 24, 3, 28, 3),
    Sketcher.Constraint("Vertical", 25, 3, 29, 3),
    Sketcher.Constraint("Vertical", 26, 3, 30, 3),
    Sketcher.Constraint("Vertical", 27, 3, 31, 3),
    Sketcher.Constraint("Vertical", 28, 3, 32, 3),
    Sketcher.Constraint("Vertical", 29, 3, 33, 3),
    Sketcher.Constraint("Vertical", 30, 3, 34, 3),
    Sketcher.Constraint("Vertical", 31, 3, 35, 3),
    Sketcher.Constraint("Vertical", 33, 3, 36, 3),
    Sketcher.Constraint("Vertical", 34, 3, 37, 3),
    Sketcher.Constraint("Vertical", 35, 3, 38, 3),
    Sketcher.Constraint("Vertical", 23, 3, 39, 3),
    Sketcher.Constraint("Vertical", 40, 3, 42, 3),
    Sketcher.Constraint("Vertical", 41, 3, 43, 3),
    Sketcher.Constraint("Vertical", 42, 3, 45, 3),
    Sketcher.Constraint("Vertical", 43, 3, 46, 3),
    Sketcher.Constraint("Vertical", 44, 3, 47, 3),
    Sketcher.Constraint("Vertical", 45, 3, 48, 3),
    Sketcher.Constraint("Vertical", 46, 3, 49, 3),
    Sketcher.Constraint("Vertical", 47, 3, 50, 3),
    Sketcher.Constraint("Vertical", 50, 3, 51, 3),
    Sketcher.Constraint("Vertical", 51, 3, 52, 3),
    Sketcher.Constraint("Vertical", 49, 3, 53, 3),
    Sketcher.Constraint("Vertical", 48, 3, 54, 3),
    Sketcher.Constraint("Vertical", 52, 3, 55, 3),
    Sketcher.Constraint("Vertical", 53, 3, 56, 3),
    Sketcher.Constraint("Vertical", 54, 3, 57, 3),
    Sketcher.Constraint("Vertical", 55, 3, 58, 3),
    Sketcher.Constraint("Vertical", 56, 3, 59, 3),
    Sketcher.Constraint("Vertical", 57, 3, 60, 3),
    Sketcher.Constraint("Vertical", 58, 3, 61, 3),
    Sketcher.Constraint("Vertical", 59, 3, 62, 3),
    Sketcher.Constraint("Vertical", 60, 3, 63, 3),
    Sketcher.Constraint("Diameter", 0, Q("0.4219 in")),
    Sketcher.Constraint("DistanceX", -1, 1, 0, 3, Q("26.5 in")),
    Sketcher.Constraint("DistanceY", 0, 3, -1, 1, Q("21.5 in")),
    Sketcher.Constraint("DistanceX", -1, 1, 1, 3, Q("21.5 in")),
    Sketcher.Constraint("DistanceX", -1, 1, 2, 3, Q("16.5 in")),
    Sketcher.Constraint("DistanceX", -1, 1, 3, 3, Q("11.5 in")),
    Sketcher.Constraint("DistanceX", -1, 1, 4, 3, Q("6.5 in")),
    Sketcher.Constraint("DistanceY", 5, 3, -1, 1, Q("16.5 in")),
    Sketcher.Constraint("DistanceY", 9, 3, -1, 1, Q("11.5 in")),
    Sketcher.Constraint("DistanceY", 13, 3, -1, 1, Q("6.5 in")),
    Sketcher.Constraint("DistanceY", 20, 3, -1, 1, Q("26.5 in")),
    Sketcher.Constraint("DistanceY", 21, 3, -1, 1, Q("41.5 in")),
    Sketcher.Constraint("DistanceY", 22, 3, -1, 1, Q("36.5 in")),
    Sketcher.Constraint("DistanceY", 23, 3, -1, 1, Q("31.5 in")),
    Sketcher.Constraint("DistanceX", -1, 1, 40, 3, Q("31.5 in")),
    Sketcher.Constraint("DistanceX", -1, 1, 41, 3, Q("36.5 in")),
    Sketcher.Constraint("DistanceX", -1, 1, 44, 3, Q("41.5 in")),
])
doc.recompute()
hole = body.newObject("PartDesign::Hole", "Hole")
hole.Profile = sketch12
hole.ThreadType = "None"
hole.setExpression("Diameter", "Params.hole_diameter")
hole.DepthType = "ThroughAll"

doc.recompute()
